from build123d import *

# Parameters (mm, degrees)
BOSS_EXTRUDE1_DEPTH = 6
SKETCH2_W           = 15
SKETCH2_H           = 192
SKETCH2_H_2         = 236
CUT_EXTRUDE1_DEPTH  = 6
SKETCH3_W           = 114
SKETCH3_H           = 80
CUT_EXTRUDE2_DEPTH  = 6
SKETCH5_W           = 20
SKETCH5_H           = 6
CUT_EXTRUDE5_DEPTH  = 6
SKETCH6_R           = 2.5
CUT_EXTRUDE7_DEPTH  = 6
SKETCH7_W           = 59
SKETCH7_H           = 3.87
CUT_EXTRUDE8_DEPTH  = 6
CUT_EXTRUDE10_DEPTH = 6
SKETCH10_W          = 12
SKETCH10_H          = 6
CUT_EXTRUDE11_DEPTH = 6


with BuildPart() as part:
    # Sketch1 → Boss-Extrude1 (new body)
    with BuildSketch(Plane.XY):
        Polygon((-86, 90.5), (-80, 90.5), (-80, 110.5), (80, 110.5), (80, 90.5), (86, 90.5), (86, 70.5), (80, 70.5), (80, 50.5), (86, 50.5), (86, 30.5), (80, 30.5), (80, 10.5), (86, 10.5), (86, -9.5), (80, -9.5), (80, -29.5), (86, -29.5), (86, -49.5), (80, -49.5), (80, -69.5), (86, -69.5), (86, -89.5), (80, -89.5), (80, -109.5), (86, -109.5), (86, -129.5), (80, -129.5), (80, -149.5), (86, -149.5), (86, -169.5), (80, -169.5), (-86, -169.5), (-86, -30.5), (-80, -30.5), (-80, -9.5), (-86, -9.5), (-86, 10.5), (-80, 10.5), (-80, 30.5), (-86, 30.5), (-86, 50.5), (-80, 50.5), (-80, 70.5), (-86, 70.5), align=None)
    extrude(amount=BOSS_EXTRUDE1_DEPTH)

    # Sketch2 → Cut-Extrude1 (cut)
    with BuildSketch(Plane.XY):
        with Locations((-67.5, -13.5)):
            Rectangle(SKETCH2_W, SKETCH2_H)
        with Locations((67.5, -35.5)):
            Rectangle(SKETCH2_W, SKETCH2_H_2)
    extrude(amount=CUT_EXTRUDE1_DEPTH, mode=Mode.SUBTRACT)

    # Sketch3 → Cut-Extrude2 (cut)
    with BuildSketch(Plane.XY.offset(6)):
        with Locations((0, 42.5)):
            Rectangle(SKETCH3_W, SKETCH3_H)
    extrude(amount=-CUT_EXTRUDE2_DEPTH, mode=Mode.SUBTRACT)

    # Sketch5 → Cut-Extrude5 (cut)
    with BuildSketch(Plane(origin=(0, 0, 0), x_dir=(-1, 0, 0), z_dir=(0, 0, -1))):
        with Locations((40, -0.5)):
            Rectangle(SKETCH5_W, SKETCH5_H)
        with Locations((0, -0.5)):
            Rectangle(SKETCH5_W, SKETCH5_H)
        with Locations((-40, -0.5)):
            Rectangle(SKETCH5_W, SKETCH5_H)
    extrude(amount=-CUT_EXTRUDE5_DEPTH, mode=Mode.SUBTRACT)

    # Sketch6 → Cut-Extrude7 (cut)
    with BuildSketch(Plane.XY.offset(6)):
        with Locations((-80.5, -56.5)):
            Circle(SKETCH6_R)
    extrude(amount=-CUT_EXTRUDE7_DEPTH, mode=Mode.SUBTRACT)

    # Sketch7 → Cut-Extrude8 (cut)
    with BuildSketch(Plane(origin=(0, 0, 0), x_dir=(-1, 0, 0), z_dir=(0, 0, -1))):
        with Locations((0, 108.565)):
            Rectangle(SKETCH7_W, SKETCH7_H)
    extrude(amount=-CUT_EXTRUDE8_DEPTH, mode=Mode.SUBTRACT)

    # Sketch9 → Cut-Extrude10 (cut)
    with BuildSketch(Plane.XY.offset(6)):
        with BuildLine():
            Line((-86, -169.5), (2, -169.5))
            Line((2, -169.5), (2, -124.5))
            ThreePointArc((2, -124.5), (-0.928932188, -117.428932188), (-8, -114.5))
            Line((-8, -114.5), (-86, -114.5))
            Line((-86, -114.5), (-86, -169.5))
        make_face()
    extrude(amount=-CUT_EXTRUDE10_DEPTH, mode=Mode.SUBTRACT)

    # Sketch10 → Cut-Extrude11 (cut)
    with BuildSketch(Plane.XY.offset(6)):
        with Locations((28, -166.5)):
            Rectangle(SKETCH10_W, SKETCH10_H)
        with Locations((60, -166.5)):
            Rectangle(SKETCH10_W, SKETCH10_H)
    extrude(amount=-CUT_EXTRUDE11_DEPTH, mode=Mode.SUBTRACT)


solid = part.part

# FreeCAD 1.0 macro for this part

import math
import FreeCAD as App
import Part
import Sketcher
Q = App.Units.Quantity

doc = App.newDocument("Part")
body = doc.addObject("PartDesign::Body", "Body")

# Sketch on XY plane
sketch1 = body.newObject("Sketcher::SketchObject", "Sketch")
sketch1.AttachmentSupport = (doc.getObject("XY_Plane"), [""])
sketch1.MapMode = "FlatFace"
sketch1.addGeometry(Part.LineSegment(App.Vector(-80, 90, 0), App.Vector(-86, 90, 0)), False)
sketch1.addGeometry(Part.LineSegment(App.Vector(-86, 90, 0), App.Vector(-86, 70, 0)), False)
sketch1.addGeometry(Part.LineSegment(App.Vector(-86, 70, 0), App.Vector(-80, 70, 0)), False)
sketch1.addGeometry(Part.LineSegment(App.Vector(-80, 70, 0), App.Vector(-80, 50, 0)), False)
sketch1.addGeometry(Part.LineSegment(App.Vector(-80, 50, 0), App.Vector(-86, 50, 0)), False)
sketch1.addGeometry(Part.LineSegment(App.Vector(-86, 50, 0), App.Vector(-86, 30, 0)), False)
sketch1.addGeometry(Part.LineSegment(App.Vector(-86, 30, 0), App.Vector(-80, 30, 0)), False)
sketch1.addGeometry(Part.LineSegment(App.Vector(-80, 30, 0), App.Vector(-80, 10, 0)), False)
sketch1.addGeometry(Part.LineSegment(App.Vector(-80, 10, 0), App.Vector(-86, 10, 0)), False)
sketch1.addGeometry(Part.LineSegment(App.Vector(-86, 10, 0), App.Vector(-86, -10, 0)), False)
sketch1.addGeometry(Part.LineSegment(App.Vector(-86, -10, 0), App.Vector(-80, -10, 0)), False)
sketch1.addGeometry(Part.LineSegment(App.Vector(-80, -10, 0), App.Vector(-80, -30, 0)), False)
sketch1.addGeometry(Part.LineSegment(App.Vector(-80, -30, 0), App.Vector(-86, -30, 0)), False)
sketch1.addGeometry(Part.LineSegment(App.Vector(-86, -30, 0), App.Vector(-86, -170, 0)), False)
sketch1.addGeometry(Part.LineSegment(App.Vector(-86, -170, 0), App.Vector(86, -170, 0)), False)
sketch1.addGeometry(Part.LineSegment(App.Vector(86, -170, 0), App.Vector(86, -150, 0)), False)
sketch1.addGeometry(Part.LineSegment(App.Vector(86, -150, 0), App.Vector(80, -150, 0)), False)
sketch1.addGeometry(Part.LineSegment(App.Vector(80, -150, 0), App.Vector(80, -130, 0)), False)
sketch1.addGeometry(Part.LineSegment(App.Vector(80, -130, 0), App.Vector(86, -130, 0)), False)
sketch1.addGeometry(Part.LineSegment(App.Vector(86, -130, 0), App.Vector(86, -110, 0)), False)
sketch1.addGeometry(Part.LineSegment(App.Vector(86, -110, 0), App.Vector(80, -110, 0)), False)
sketch1.addGeometry(Part.LineSegment(App.Vector(80, -110, 0), App.Vector(80, -90, 0)), False)
sketch1.addGeometry(Part.LineSegment(App.Vector(80, -90, 0), App.Vector(86, -90, 0)), False)
sketch1.addGeometry(Part.LineSegment(App.Vector(86, -90, 0), App.Vector(86, -70, 0)), False)
sketch1.addGeometry(Part.LineSegment(App.Vector(86, -70, 0), App.Vector(80, -70, 0)), False)
sketch1.addGeometry(Part.LineSegment(App.Vector(80, -70, 0), App.Vector(80, -50, 0)), False)
sketch1.addGeometry(Part.LineSegment(App.Vector(80, -50, 0), App.Vector(86, -50, 0)), False)
sketch1.addGeometry(Part.LineSegment(App.Vector(86, -50, 0), App.Vector(86, -30, 0)), False)
sketch1.addGeometry(Part.LineSegment(App.Vector(86, -30, 0), App.Vector(80, -30, 0)), False)
sketch1.addGeometry(Part.LineSegment(App.Vector(80, -30, 0), App.Vector(80, -10, 0)), False)
sketch1.addGeometry(Part.LineSegment(App.Vector(80, -10, 0), App.Vector(86, -10, 0)), False)
sketch1.addGeometry(Part.LineSegment(App.Vector(86, -10, 0), App.Vector(86, 10, 0)), False)
sketch1.addGeometry(Part.LineSegment(App.Vector(86, 10, 0), App.Vector(80, 10, 0)), False)
sketch1.addGeometry(Part.LineSegment(App.Vector(80, 10, 0), App.Vector(80, 30, 0)), False)
sketch1.addGeometry(Part.LineSegment(App.Vector(80, 30, 0), App.Vector(86, 30, 0)), False)
sketch1.addGeometry(Part.LineSegment(App.Vector(86, 30, 0), App.Vector(86, 50, 0)), False)
sketch1.addGeometry(Part.LineSegment(App.Vector(86, 50, 0), App.Vector(80, 50, 0)), False)
sketch1.addGeometry(Part.LineSegment(App.Vector(80, 50, 0), App.Vector(80, 70, 0)), False)
sketch1.addGeometry(Part.LineSegment(App.Vector(80, 70, 0), App.Vector(86, 70, 0)), False)
sketch1.addGeometry(Part.LineSegment(App.Vector(86, 70, 0), App.Vector(86, 90, 0)), False)
sketch1.addGeometry(Part.LineSegment(App.Vector(86, 90, 0), App.Vector(80, 90, 0)), False)
sketch1.addGeometry(Part.LineSegment(App.Vector(80, 90, 0), App.Vector(80, 110, 0)), False)
sketch1.addGeometry(Part.LineSegment(App.Vector(80, 110, 0), App.Vector(-80, 110, 0)), False)
sketch1.addGeometry(Part.LineSegment(App.Vector(-80, 110, 0), App.Vector(-80, 90, 0)), False)
sketch1.addConstraint(Sketcher.Constraint("Coincident", 0, 2, 1, 1))
sketch1.addConstraint(Sketcher.Constraint("Coincident", 1, 2, 2, 1))
sketch1.addConstraint(Sketcher.Constraint("Coincident", 2, 2, 3, 1))
sketch1.addConstraint(Sketcher.Constraint("Coincident", 3, 2, 4, 1))
sketch1.addConstraint(Sketcher.Constraint("Coincident", 4, 2, 5, 1))
sketch1.addConstraint(Sketcher.Constraint("Coincident", 5, 2, 6, 1))
sketch1.addConstraint(Sketcher.Constraint("Coincident", 6, 2, 7, 1))
sketch1.addConstraint(Sketcher.Constraint("Coincident", 7, 2, 8, 1))
sketch1.addConstraint(Sketcher.Constraint("Coincident", 8, 2, 9, 1))
sketch1.addConstraint(Sketcher.Constraint("Coincident", 9, 2, 10, 1))
sketch1.addConstraint(Sketcher.Constraint("Coincident", 10, 2, 11, 1))
sketch1.addConstraint(Sketcher.Constraint("Coincident", 11, 2, 12, 1))
sketch1.addConstraint(Sketcher.Constraint("Coincident", 12, 2, 13, 1))
sketch1.addConstraint(Sketcher.Constraint("Coincident", 13, 2, 14, 1))
sketch1.addConstraint(Sketcher.Constraint("Coincident", 14, 2, 15, 1))
sketch1.addConstraint(Sketcher.Constraint("Coincident", 15, 2, 16, 1))
sketch1.addConstraint(Sketcher.Constraint("Coincident", 16, 2, 17, 1))
sketch1.addConstraint(Sketcher.Constraint("Coincident", 17, 2, 18, 1))
sketch1.addConstraint(Sketcher.Constraint("Coincident", 18, 2, 19, 1))
sketch1.addConstraint(Sketcher.Constraint("Coincident", 19, 2, 20, 1))
sketch1.addConstraint(Sketcher.Constraint("Coincident", 20, 2, 21, 1))
sketch1.addConstraint(Sketcher.Constraint("Coincident", 21, 2, 22, 1))
sketch1.addConstraint(Sketcher.Constraint("Coincident", 22, 2, 23, 1))
sketch1.addConstraint(Sketcher.Constraint("Coincident", 23, 2, 24, 1))
sketch1.addConstraint(Sketcher.Constraint("Coincident", 24, 2, 25, 1))
sketch1.addConstraint(Sketcher.Constraint("Coincident", 25, 2, 26, 1))
sketch1.addConstraint(Sketcher.Constraint("Coincident", 26, 2, 27, 1))
sketch1.addConstraint(Sketcher.Constraint("Coincident", 27, 2, 28, 1))
sketch1.addConstraint(Sketcher.Constraint("Coincident", 28, 2, 29, 1))
sketch1.addConstraint(Sketcher.Constraint("Coincident", 29, 2, 30, 1))
sketch1.addConstraint(Sketcher.Constraint("Coincident", 30, 2, 31, 1))
sketch1.addConstraint(Sketcher.Constraint("Coincident", 31, 2, 32, 1))
sketch1.addConstraint(Sketcher.Constraint("Coincident", 32, 2, 33, 1))
sketch1.addConstraint(Sketcher.Constraint("Coincident", 33, 2, 34, 1))
sketch1.addConstraint(Sketcher.Constraint("Coincident", 34, 2, 35, 1))
sketch1.addConstraint(Sketcher.Constraint("Coincident", 35, 2, 36, 1))
sketch1.addConstraint(Sketcher.Constraint("Coincident", 36, 2, 37, 1))
sketch1.addConstraint(Sketcher.Constraint("Coincident", 37, 2, 38, 1))
sketch1.addConstraint(Sketcher.Constraint("Coincident", 38, 2, 39, 1))
sketch1.addConstraint(Sketcher.Constraint("Coincident", 39, 2, 40, 1))
sketch1.addConstraint(Sketcher.Constraint("Coincident", 40, 2, 41, 1))
sketch1.addConstraint(Sketcher.Constraint("Coincident", 41, 2, 42, 1))
sketch1.addConstraint(Sketcher.Constraint("Coincident", 42, 2, 43, 1))
sketch1.addConstraint(Sketcher.Constraint("Coincident", 43, 2, 0, 1))
sketch1.addConstraint(Sketcher.Constraint("Horizontal", 0))
sketch1.addConstraint(Sketcher.Constraint("Vertical", 1))
sketch1.addConstraint(Sketcher.Constraint("Horizontal", 2))
sketch1.addConstraint(Sketcher.Constraint("Vertical", 3))
sketch1.addConstraint(Sketcher.Constraint("Horizontal", 4))
sketch1.addConstraint(Sketcher.Constraint("Vertical", 5))
sketch1.addConstraint(Sketcher.Constraint("Horizontal", 6))
sketch1.addConstraint(Sketcher.Constraint("Vertical", 7))
sketch1.addConstraint(Sketcher.Constraint("Horizontal", 8))
sketch1.addConstraint(Sketcher.Constraint("Vertical", 9))
sketch1.addConstraint(Sketcher.Constraint("Horizontal", 10))
sketch1.addConstraint(Sketcher.Constraint("Vertical", 11))
sketch1.addConstraint(Sketcher.Constraint("Horizontal", 12))
sketch1.addConstraint(Sketcher.Constraint("Vertical", 13))
sketch1.addConstraint(Sketcher.Constraint("Horizontal", 14))
sketch1.addConstraint(Sketcher.Constraint("Vertical", 15))
sketch1.addConstraint(Sketcher.Constraint("Horizontal", 16))
sketch1.addConstraint(Sketcher.Constraint("Vertical", 17))
sketch1.addConstraint(Sketcher.Constraint("Horizontal", 18))
sketch1.addConstraint(Sketcher.Constraint("Vertical", 19))
sketch1.addConstraint(Sketcher.Constraint("Horizontal", 20))
sketch1.addConstraint(Sketcher.Constraint("Vertical", 21))
sketch1.addConstraint(Sketcher.Constraint("Horizontal", 22))
sketch1.addConstraint(Sketcher.Constraint("Vertical", 23))
sketch1.addConstraint(Sketcher.Constraint("Horizontal", 24))
sketch1.addConstraint(Sketcher.Constraint("Vertical", 25))
sketch1.addConstraint(Sketcher.Constraint("Horizontal", 26))
sketch1.addConstraint(Sketcher.Constraint("Vertical", 27))
sketch1.addConstraint(Sketcher.Constraint("Horizontal", 28))
sketch1.addConstraint(Sketcher.Constraint("Vertical", 29))
sketch1.addConstraint(Sketcher.Constraint("Horizontal", 30))
sketch1.addConstraint(Sketcher.Constraint("Vertical", 31))
sketch1.addConstraint(Sketcher.Constraint("Horizontal", 32))
sketch1.addConstraint(Sketcher.Constraint("Vertical", 33))
sketch1.addConstraint(Sketcher.Constraint("Horizontal", 34))
sketch1.addConstraint(Sketcher.Constraint("Vertical", 35))
sketch1.addConstraint(Sketcher.Constraint("Horizontal", 36))
sketch1.addConstraint(Sketcher.Constraint("Vertical", 37))
sketch1.addConstraint(Sketcher.Constraint("Horizontal", 38))
sketch1.addConstraint(Sketcher.Constraint("Vertical", 39))
sketch1.addConstraint(Sketcher.Constraint("Horizontal", 40))
sketch1.addConstraint(Sketcher.Constraint("Vertical", 41))
sketch1.addConstraint(Sketcher.Constraint("Horizontal", 42))
sketch1.addConstraint(Sketcher.Constraint("Vertical", 43))
sketch1.addConstraint(Sketcher.Constraint("Symmetric", 11, 2, 33, 2, -1, 1))
sketch1.addConstraint(Sketcher.Constraint("Symmetric", 10, 2, 29, 2, -2))
sketch1.addConstraint(Sketcher.Constraint("Symmetric", 8, 2, 31, 2, -2))
sketch1.addConstraint(Sketcher.Constraint("Symmetric", 6, 2, 33, 2, -2))
sketch1.addConstraint(Sketcher.Constraint("Symmetric", 4, 2, 35, 2, -2))
sketch1.addConstraint(Sketcher.Constraint("Symmetric", 2, 2, 37, 2, -2))
sketch1.addConstraint(Sketcher.Constraint("Symmetric", 0, 2, 39, 2, -2))
sketch1.addConstraint(Sketcher.Constraint("Vertical", 1, 2, 4, 2))
sketch1.addConstraint(Sketcher.Constraint("Vertical", 3, 2, 6, 2))
sketch1.addConstraint(Sketcher.Constraint("Vertical", 5, 2, 8, 2))
sketch1.addConstraint(Sketcher.Constraint("Vertical", 9, 2, 12, 2))
sketch1.addConstraint(Sketcher.Constraint("Vertical", 15, 2, 18, 2))
sketch1.addConstraint(Sketcher.Constraint("Vertical", 17, 2, 20, 2))
sketch1.addConstraint(Sketcher.Constraint("Vertical", 19, 2, 22, 2))
sketch1.addConstraint(Sketcher.Constraint("Vertical", 21, 2, 24, 2))
sketch1.addConstraint(Sketcher.Constraint("Vertical", 23, 2, 26, 2))
sketch1.addConstraint(Sketcher.Constraint("Vertical", 25, 2, 28, 2))
sketch1.addConstraint(Sketcher.Constraint("Vertical", 27, 2, 30, 2))
sketch1.addConstraint(Sketcher.Constraint("Vertical", 37, 2, 40, 2))
sketch1.addConstraint(Sketcher.Constraint("Vertical", 11, 2, 42, 2))
sketch1.addConstraint(Sketcher.Constraint("Equal", 1, 3))
sketch1.addConstraint(Sketcher.Constraint("Equal", 3, 5))
sketch1.addConstraint(Sketcher.Constraint("Equal", 5, 7))
sketch1.addConstraint(Sketcher.Constraint("Equal", 7, 9))
sketch1.addConstraint(Sketcher.Constraint("Equal", 9, 15))
sketch1.addConstraint(Sketcher.Constraint("Equal", 15, 17))
sketch1.addConstraint(Sketcher.Constraint("Equal", 17, 19))
sketch1.addConstraint(Sketcher.Constraint("Equal", 19, 21))
sketch1.addConstraint(Sketcher.Constraint("Equal", 21, 23))
sketch1.addConstraint(Sketcher.Constraint("Equal", 23, 25))
sketch1.addConstraint(Sketcher.Constraint("Equal", 25, 27))
sketch1.addConstraint(Sketcher.Constraint("Equal", 27, 29))
sketch1.addConstraint(Sketcher.Constraint("Equal", 39, 41))
sketch1.addConstraint(Sketcher.Constraint("DistanceX", 0, 2, 0, 1, Q("6 mm")))
sketch1.addConstraint(Sketcher.Constraint("DistanceX", 14, 1, 14, 2, Q("172 mm")))
sketch1.addConstraint(Sketcher.Constraint("DistanceY", 1, 2, 1, 1, Q("20 mm")))
sketch1.addConstraint(Sketcher.Constraint("DistanceY", 11, 2, 11, 1, Q("21 mm")))
pad1 = body.newObject("PartDesign::Pad", "Pad")
pad1.Profile = sketch1
pad1.Length = 6

# Sketch on XY plane
sketch2 = body.newObject("Sketcher::SketchObject", "Sketch001")
sketch2.AttachmentSupport = (doc.getObject("XY_Plane"), [""])
sketch2.MapMode = "FlatFace"
sketch2.addGeometry(Part.LineSegment(App.Vector(-75, 82, 0), App.Vector(-75, -110, 0)), False)
sketch2.addGeometry(Part.LineSegment(App.Vector(-75, -110, 0), App.Vector(-60, -110, 0)), False)
sketch2.addGeometry(Part.LineSegment(App.Vector(-60, -110, 0), App.Vector(-60, 82, 0)), False)
sketch2.addGeometry(Part.LineSegment(App.Vector(-60, 82, 0), App.Vector(-75, 82, 0)), False)
sketch2.addGeometry(Part.LineSegment(App.Vector(60, 82, 0), App.Vector(60, -154, 0)), False)
sketch2.addGeometry(Part.LineSegment(App.Vector(60, -154, 0), App.Vector(75, -154, 0)), False)
sketch2.addGeometry(Part.LineSegment(App.Vector(75, -154, 0), App.Vector(75, 82, 0)), False)
sketch2.addGeometry(Part.LineSegment(App.Vector(75, 82, 0), App.Vector(60, 82, 0)), False)
sketch2.addConstraint(Sketcher.Constraint("Coincident", 0, 2, 1, 1))
sketch2.addConstraint(Sketcher.Constraint("Coincident", 1, 2, 2, 1))
sketch2.addConstraint(Sketcher.Constraint("Coincident", 2, 2, 3, 1))
sketch2.addConstraint(Sketcher.Constraint("Coincident", 3, 2, 0, 1))
sketch2.addConstraint(Sketcher.Constraint("Coincident", 4, 2, 5, 1))
sketch2.addConstraint(Sketcher.Constraint("Coincident", 5, 2, 6, 1))
sketch2.addConstraint(Sketcher.Constraint("Coincident", 6, 2, 7, 1))
sketch2.addConstraint(Sketcher.Constraint("Coincident", 7, 2, 4, 1))
sketch2.addConstraint(Sketcher.Constraint("Vertical", 0))
sketch2.addConstraint(Sketcher.Constraint("Horizontal", 1))
sketch2.addConstraint(Sketcher.Constraint("Vertical", 2))
sketch2.addConstraint(Sketcher.Constraint("Horizontal", 3))
sketch2.addConstraint(Sketcher.Constraint("Vertical", 4))
sketch2.addConstraint(Sketcher.Constraint("Horizontal", 5))
sketch2.addConstraint(Sketcher.Constraint("Vertical", 6))
sketch2.addConstraint(Sketcher.Constraint("Horizontal", 7))
sketch2.addConstraint(Sketcher.Constraint("Symmetric", 3, 2, 6, 2, -2))
sketch2.addConstraint(Sketcher.Constraint("Equal", 3, 5))
sketch2.addConstraint(Sketcher.Constraint("DistanceX", 1, 1, 1, 2, Q("15 mm")))
sketch2.addConstraint(Sketcher.Constraint("DistanceY", 0, 2, 0, 1, Q("192 mm")))
sketch2.addConstraint(Sketcher.Constraint("DistanceY", 4, 2, 4, 1, Q("236 mm")))
sketch2.addConstraint(Sketcher.Constraint("DistanceX", 0, 2, -1, 1, Q("75 mm")))
sketch2.addConstraint(Sketcher.Constraint("DistanceY", 0, 2, -1, 1, Q("109.5 mm")))
pocket1 = body.newObject("PartDesign::Pocket", "Pocket")
pocket1.Profile = sketch2
pocket1.Length = 6
pocket1.Reversed = True

# Sketch on XY plane
sketch3 = body.newObject("Sketcher::SketchObject", "Sketch002")
sketch3.AttachmentSupport = (doc.getObject("XY_Plane"), [""])
sketch3.MapMode = "FlatFace"
sketch3.AttachmentOffset = App.Placement(App.Vector(0, 0, 6), App.Rotation())
sketch3.addGeometry(Part.LineSegment(App.Vector(-57, 82, 0), App.Vector(-57, 2, 0)), False)
sketch3.addGeometry(Part.LineSegment(App.Vector(-57, 2, 0), App.Vector(57, 2, 0)), False)
sketch3.addGeometry(Part.LineSegment(App.Vector(57, 2, 0), App.Vector(57, 82, 0)), False)
sketch3.addGeometry(Part.LineSegment(App.Vector(57, 82, 0), App.Vector(-57, 82, 0)), False)
sketch3.addConstraint(Sketcher.Constraint("Coincident", 0, 2, 1, 1))
sketch3.addConstraint(Sketcher.Constraint("Coincident", 1, 2, 2, 1))
sketch3.addConstraint(Sketcher.Constraint("Coincident", 2, 2, 3, 1))
sketch3.addConstraint(Sketcher.Constraint("Coincident", 3, 2, 0, 1))
sketch3.addConstraint(Sketcher.Constraint("Vertical", 0))
sketch3.addConstraint(Sketcher.Constraint("Horizontal", 1))
sketch3.addConstraint(Sketcher.Constraint("Vertical", 2))
sketch3.addConstraint(Sketcher.Constraint("Horizontal", 3))
sketch3.addConstraint(Sketcher.Constraint("DistanceX", 1, 1, 1, 2, Q("114 mm")))
sketch3.addConstraint(Sketcher.Constraint("DistanceY", 0, 2, 0, 1, Q("80 mm")))
sketch3.addConstraint(Sketcher.Constraint("DistanceX", 0, 2, -1, 1, Q("57 mm")))
sketch3.addConstraint(Sketcher.Constraint("DistanceY", -1, 1, 0, 2, Q("2.5 mm")))
pocket2 = body.newObject("PartDesign::Pocket", "Pocket001")
pocket2.Profile = sketch3
pocket2.Length = 6

# Sketch on XY plane
sketch4 = body.newObject("Sketcher::SketchObject", "Sketch003")
sketch4.AttachmentSupport = (doc.getObject("XY_Plane"), [""])
sketch4.MapMode = "FlatFace"
sketch4.addGeometry(Part.LineSegment(App.Vector(-30, 2, 0), App.Vector(-30, -4, 0)), False)
sketch4.addGeometry(Part.LineSegment(App.Vector(-30, -4, 0), App.Vector(-50, -4, 0)), False)
sketch4.addGeometry(Part.LineSegment(App.Vector(-50, -4, 0), App.Vector(-50, 2, 0)), False)
sketch4.addGeometry(Part.LineSegment(App.Vector(-50, 2, 0), App.Vector(-30, 2, 0)), False)
sketch4.addGeometry(Part.LineSegment(App.Vector(10, 2, 0), App.Vector(10, -4, 0)), False)
sketch4.addGeometry(Part.LineSegment(App.Vector(10, -4, 0), App.Vector(-10, -4, 0)), False)
sketch4.addGeometry(Part.LineSegment(App.Vector(-10, -4, 0), App.Vector(-10, 2, 0)), False)
sketch4.addGeometry(Part.LineSegment(App.Vector(-10, 2, 0), App.Vector(10, 2, 0)), False)
sketch4.addGeometry(Part.LineSegment(App.Vector(50, 2, 0), App.Vector(50, -4, 0)), False)
sketch4.addGeometry(Part.LineSegment(App.Vector(50, -4, 0), App.Vector(30, -4, 0)), False)
sketch4.addGeometry(Part.LineSegment(App.Vector(30, -4, 0), App.Vector(30, 2, 0)), False)
sketch4.addGeometry(Part.LineSegment(App.Vector(30, 2, 0), App.Vector(50, 2, 0)), False)
sketch4.addConstraint(Sketcher.Constraint("Coincident", 0, 2, 1, 1))
sketch4.addConstraint(Sketcher.Constraint("Coincident", 1, 2, 2, 1))
sketch4.addConstraint(Sketcher.Constraint("Coincident", 2, 2, 3, 1))
sketch4.addConstraint(Sketcher.Constraint("Coincident", 3, 2, 0, 1))
sketch4.addConstraint(Sketcher.Constraint("Coincident", 4, 2, 5, 1))
sketch4.addConstraint(Sketcher.Constraint("Coincident", 5, 2, 6, 1))
sketch4.addConstraint(Sketcher.Constraint("Coincident", 6, 2, 7, 1))
sketch4.addConstraint(Sketcher.Constraint("Coincident", 7, 2, 4, 1))
sketch4.addConstraint(Sketcher.Constraint("Coincident", 8, 2, 9, 1))
sketch4.addConstraint(Sketcher.Constraint("Coincident", 9, 2, 10, 1))
sketch4.addConstraint(Sketcher.Constraint("Coincident", 10, 2, 11, 1))
sketch4.addConstraint(Sketcher.Constraint("Coincident", 11, 2, 8, 1))
sketch4.addConstraint(Sketcher.Constraint("Vertical", 0))
sketch4.addConstraint(Sketcher.Constraint("Horizontal", 1))
sketch4.addConstraint(Sketcher.Constraint("Vertical", 2))
sketch4.addConstraint(Sketcher.Constraint("Horizontal", 3))
sketch4.addConstraint(Sketcher.Constraint("Vertical", 4))
sketch4.addConstraint(Sketcher.Constraint("Horizontal", 5))
sketch4.addConstraint(Sketcher.Constraint("Vertical", 6))
sketch4.addConstraint(Sketcher.Constraint("Horizontal", 7))
sketch4.addConstraint(Sketcher.Constraint("Vertical", 8))
sketch4.addConstraint(Sketcher.Constraint("Horizontal", 9))
sketch4.addConstraint(Sketcher.Constraint("Vertical", 10))
sketch4.addConstraint(Sketcher.Constraint("Horizontal", 11))
sketch4.addConstraint(Sketcher.Constraint("Symmetric", 1, 2, 8, 2, -2))
sketch4.addConstraint(Sketcher.Constraint("Symmetric", 3, 2, 10, 2, -2))
sketch4.addConstraint(Sketcher.Constraint("Horizontal", 1, 2, 4, 2))
sketch4.addConstraint(Sketcher.Constraint("Horizontal", 3, 2, 6, 2))
sketch4.addConstraint(Sketcher.Constraint("Equal", 3, 5))
sketch4.addConstraint(Sketcher.Constraint("DistanceX", 1, 2, 1, 1, Q("20 mm")))
sketch4.addConstraint(Sketcher.Constraint("DistanceY", 0, 2, 0, 1, Q("6 mm")))
sketch4.addConstraint(Sketcher.Constraint("DistanceX", 0, 2, -1, 1, Q("30 mm")))
sketch4.addConstraint(Sketcher.Constraint("DistanceX", -1, 1, 4, 2, Q("10 mm")))
sketch4.addConstraint(Sketcher.Constraint("DistanceY", 0, 2, -1, 1, Q("3.5 mm")))
pocket3 = body.newObject("PartDesign::Pocket", "Pocket002")
pocket3.Profile = sketch4
pocket3.Length = 6
pocket3.Reversed = True

# Sketch on XY plane
sketch5 = body.newObject("Sketcher::SketchObject", "Sketch004")
sketch5.AttachmentSupport = (doc.getObject("XY_Plane"), [""])
sketch5.MapMode = "FlatFace"
sketch5.AttachmentOffset = App.Placement(App.Vector(0, 0, 6), App.Rotation())
sketch5.addGeometry(Part.Circle(App.Vector(-80.5, -56.5, 0), App.Vector(0, 0, 1), 2.5), False)
sketch5.addConstraint(Sketcher.Constraint("Diameter", 0, Q("5 mm")))
sketch5.addConstraint(Sketcher.Constraint("DistanceX", 0, 3, -1, 1, Q("80.5 mm")))
sketch5.addConstraint(Sketcher.Constraint("DistanceY", 0, 3, -1, 1, Q("56.5 mm")))
pocket4 = body.newObject("PartDesign::Pocket", "Pocket003")
pocket4.Profile = sketch5
pocket4.Length = 6

# Sketch on XY plane
sketch6 = body.newObject("Sketcher::SketchObject", "Sketch005")
sketch6.AttachmentSupport = (doc.getObject("XY_Plane"), [""])
sketch6.MapMode = "FlatFace"
sketch6.addGeometry(Part.LineSegment(App.Vector(29.5, 110.5, 0), App.Vector(29.5, 106.6, 0)), False)
sketch6.addGeometry(Part.LineSegment(App.Vector(29.5, 106.6, 0), App.Vector(-29.5, 106.6, 0)), False)
sketch6.addGeometry(Part.LineSegment(App.Vector(-29.5, 106.6, 0), App.Vector(-29.5, 110.5, 0)), False)
sketch6.addGeometry(Part.LineSegment(App.Vector(-29.5, 110.5, 0), App.Vector(29.5, 110.5, 0)), False)
sketch6.addConstraint(Sketcher.Constraint("Coincident", 0, 2, 1, 1))
sketch6.addConstraint(Sketcher.Constraint("Coincident", 1, 2, 2, 1))
sketch6.addConstraint(Sketcher.Constraint("Coincident", 2, 2, 3, 1))
sketch6.addConstraint(Sketcher.Constraint("Coincident", 3, 2, 0, 1))
sketch6.addConstraint(Sketcher.Constraint("Vertical", 0))
sketch6.addConstraint(Sketcher.Constraint("Horizontal", 1))
sketch6.addConstraint(Sketcher.Constraint("Vertical", 2))
sketch6.addConstraint(Sketcher.Constraint("Horizontal", 3))
sketch6.addConstraint(Sketcher.Constraint("DistanceX", 1, 2, 1, 1, Q("59 mm")))
sketch6.addConstraint(Sketcher.Constraint("DistanceY", 0, 2, 0, 1, Q("3.87 mm")))
sketch6.addConstraint(Sketcher.Constraint("DistanceX", -1, 1, 0, 2, Q("29.5 mm")))
sketch6.addConstraint(Sketcher.Constraint("DistanceY", -1, 1, 2, 2, Q("110.5 mm")))
pocket5 = body.newObject("PartDesign::Pocket", "Pocket004")
pocket5.Profile = sketch6
pocket5.Length = 6
pocket5.Reversed = True

# Sketch on XY plane
sketch7 = body.newObject("Sketcher::SketchObject", "Sketch006")
sketch7.AttachmentSupport = (doc.getObject("XY_Plane"), [""])
sketch7.MapMode = "FlatFace"
sketch7.AttachmentOffset = App.Placement(App.Vector(0, 0, 6), App.Rotation())
sketch7.addGeometry(Part.LineSegment(App.Vector(-86, -170, 0), App.Vector(2, -170, 0)), False)
sketch7.addGeometry(Part.LineSegment(App.Vector(2, -170, 0), App.Vector(2, -124, 0)), False)
sketch7.addGeometry(Part.ArcOfCircle(Part.Circle(App.Vector(-8, -124, 0), App.Vector(0, 0, 1), 10), math.radians(0), math.radians(90)), False)
sketch7.addGeometry(Part.LineSegment(App.Vector(-8, -114, 0), App.Vector(-86, -114, 0)), False)
sketch7.addGeometry(Part.LineSegment(App.Vector(-86, -114, 0), App.Vector(-86, -170, 0)), False)
sketch7.addConstraint(Sketcher.Constraint("Coincident", 0, 2, 1, 1))
sketch7.addConstraint(Sketcher.Constraint("Tangent", 1, 2, 2, 1))
sketch7.addConstraint(Sketcher.Constraint("Tangent", 2, 2, 3, 1))
sketch7.addConstraint(Sketcher.Constraint("Coincident", 3, 2, 4, 1))
sketch7.addConstraint(Sketcher.Constraint("Coincident", 4, 2, 0, 1))
sketch7.addConstraint(Sketcher.Constraint("Horizontal", 0))
sketch7.addConstraint(Sketcher.Constraint("Vertical", 1))
sketch7.addConstraint(Sketcher.Constraint("Horizontal", 3))
sketch7.addConstraint(Sketcher.Constraint("Vertical", 4))
sketch7.addConstraint(Sketcher.Constraint("Radius", 2, Q("10 mm")))
sketch7.addConstraint(Sketcher.Constraint("DistanceX", 0, 1, 0, 2, Q("88 mm")))
sketch7.addConstraint(Sketcher.Constraint("DistanceY", 1, 1, 1, 2, Q("45 mm")))
sketch7.addConstraint(Sketcher.Constraint("DistanceX", 2, 3, -1, 1, Q("8 mm")))
sketch7.addConstraint(Sketcher.Constraint("DistanceY", 2, 3, -1, 1, Q("124.5 mm")))
pocket6 = body.newObject("PartDesign::Pocket", "Pocket005")
pocket6.Profile = sketch7
pocket6.Length = 6

# Sketch on XY plane
sketch8 = body.newObject("Sketcher::SketchObject", "Sketch007")
sketch8.AttachmentSupport = (doc.getObject("XY_Plane"), [""])
sketch8.MapMode = "FlatFace"
sketch8.AttachmentOffset = App.Placement(App.Vector(0, 0, 6), App.Rotation())
sketch8.addGeometry(Part.LineSegment(App.Vector(22, -164, 0), App.Vector(22, -170, 0)), False)
sketch8.addGeometry(Part.LineSegment(App.Vector(22, -170, 0), App.Vector(34, -170, 0)), False)
sketch8.addGeometry(Part.LineSegment(App.Vector(34, -170, 0), App.Vector(34, -164, 0)), False)
sketch8.addGeometry(Part.LineSegment(App.Vector(34, -164, 0), App.Vector(22, -164, 0)), False)
sketch8.addGeometry(Part.LineSegment(App.Vector(54, -164, 0), App.Vector(54, -170, 0)), False)
sketch8.addGeometry(Part.LineSegment(App.Vector(54, -170, 0), App.Vector(66, -170, 0)), False)
sketch8.addGeometry(Part.LineSegment(App.Vector(66, -170, 0), App.Vector(66, -164, 0)), False)
sketch8.addGeometry(Part.LineSegment(App.Vector(66, -164, 0), App.Vector(54, -164, 0)), False)
sketch8.addConstraint(Sketcher.Constraint("Coincident", 0, 2, 1, 1))
sketch8.addConstraint(Sketcher.Constraint("Coincident", 1, 2, 2, 1))
sketch8.addConstraint(Sketcher.Constraint("Coincident", 2, 2, 3, 1))
sketch8.addConstraint(Sketcher.Constraint("Coincident", 3, 2, 0, 1))
sketch8.addConstraint(Sketcher.Constraint("Coincident", 4, 2, 5, 1))
sketch8.addConstraint(Sketcher.Constraint("Coincident", 5, 2, 6, 1))
sketch8.addConstraint(Sketcher.Constraint("Coincident", 6, 2, 7, 1))
sketch8.addConstraint(Sketcher.Constraint("Coincident", 7, 2, 4, 1))
sketch8.addConstraint(Sketcher.Constraint("Vertical", 0))
sketch8.addConstraint(Sketcher.Constraint("Horizontal", 1))
sketch8.addConstraint(Sketcher.Constraint("Vertical", 2))
sketch8.addConstraint(Sketcher.Constraint("Horizontal", 3))
sketch8.addConstraint(Sketcher.Constraint("Vertical", 4))
sketch8.addConstraint(Sketcher.Constraint("Horizontal", 5))
sketch8.addConstraint(Sketcher.Constraint("Vertical", 6))
sketch8.addConstraint(Sketcher.Constraint("Horizontal", 7))
sketch8.addConstraint(Sketcher.Constraint("Horizontal", 1, 2, 4, 2))
sketch8.addConstraint(Sketcher.Constraint("Horizontal", 3, 2, 6, 2))
sketch8.addConstraint(Sketcher.Constraint("Equal", 3, 5))
sketch8.addConstraint(Sketcher.Constraint("DistanceX", 1, 1, 1, 2, Q("12 mm")))
sketch8.addConstraint(Sketcher.Constraint("DistanceY", 0, 2, 0, 1, Q("6 mm")))
sketch8.addConstraint(Sketcher.Constraint("DistanceX", -1, 1, 0, 2, Q("22 mm")))
sketch8.addConstraint(Sketcher.Constraint("DistanceX", -1, 1, 4, 2, Q("54 mm")))
sketch8.addConstraint(Sketcher.Constraint("DistanceY", 0, 2, -1, 1, Q("169.5 mm")))
pocket7 = body.newObject("PartDesign::Pocket", "Pocket006")
pocket7.Profile = sketch8
pocket7.Length = 6

doc.recompute()
